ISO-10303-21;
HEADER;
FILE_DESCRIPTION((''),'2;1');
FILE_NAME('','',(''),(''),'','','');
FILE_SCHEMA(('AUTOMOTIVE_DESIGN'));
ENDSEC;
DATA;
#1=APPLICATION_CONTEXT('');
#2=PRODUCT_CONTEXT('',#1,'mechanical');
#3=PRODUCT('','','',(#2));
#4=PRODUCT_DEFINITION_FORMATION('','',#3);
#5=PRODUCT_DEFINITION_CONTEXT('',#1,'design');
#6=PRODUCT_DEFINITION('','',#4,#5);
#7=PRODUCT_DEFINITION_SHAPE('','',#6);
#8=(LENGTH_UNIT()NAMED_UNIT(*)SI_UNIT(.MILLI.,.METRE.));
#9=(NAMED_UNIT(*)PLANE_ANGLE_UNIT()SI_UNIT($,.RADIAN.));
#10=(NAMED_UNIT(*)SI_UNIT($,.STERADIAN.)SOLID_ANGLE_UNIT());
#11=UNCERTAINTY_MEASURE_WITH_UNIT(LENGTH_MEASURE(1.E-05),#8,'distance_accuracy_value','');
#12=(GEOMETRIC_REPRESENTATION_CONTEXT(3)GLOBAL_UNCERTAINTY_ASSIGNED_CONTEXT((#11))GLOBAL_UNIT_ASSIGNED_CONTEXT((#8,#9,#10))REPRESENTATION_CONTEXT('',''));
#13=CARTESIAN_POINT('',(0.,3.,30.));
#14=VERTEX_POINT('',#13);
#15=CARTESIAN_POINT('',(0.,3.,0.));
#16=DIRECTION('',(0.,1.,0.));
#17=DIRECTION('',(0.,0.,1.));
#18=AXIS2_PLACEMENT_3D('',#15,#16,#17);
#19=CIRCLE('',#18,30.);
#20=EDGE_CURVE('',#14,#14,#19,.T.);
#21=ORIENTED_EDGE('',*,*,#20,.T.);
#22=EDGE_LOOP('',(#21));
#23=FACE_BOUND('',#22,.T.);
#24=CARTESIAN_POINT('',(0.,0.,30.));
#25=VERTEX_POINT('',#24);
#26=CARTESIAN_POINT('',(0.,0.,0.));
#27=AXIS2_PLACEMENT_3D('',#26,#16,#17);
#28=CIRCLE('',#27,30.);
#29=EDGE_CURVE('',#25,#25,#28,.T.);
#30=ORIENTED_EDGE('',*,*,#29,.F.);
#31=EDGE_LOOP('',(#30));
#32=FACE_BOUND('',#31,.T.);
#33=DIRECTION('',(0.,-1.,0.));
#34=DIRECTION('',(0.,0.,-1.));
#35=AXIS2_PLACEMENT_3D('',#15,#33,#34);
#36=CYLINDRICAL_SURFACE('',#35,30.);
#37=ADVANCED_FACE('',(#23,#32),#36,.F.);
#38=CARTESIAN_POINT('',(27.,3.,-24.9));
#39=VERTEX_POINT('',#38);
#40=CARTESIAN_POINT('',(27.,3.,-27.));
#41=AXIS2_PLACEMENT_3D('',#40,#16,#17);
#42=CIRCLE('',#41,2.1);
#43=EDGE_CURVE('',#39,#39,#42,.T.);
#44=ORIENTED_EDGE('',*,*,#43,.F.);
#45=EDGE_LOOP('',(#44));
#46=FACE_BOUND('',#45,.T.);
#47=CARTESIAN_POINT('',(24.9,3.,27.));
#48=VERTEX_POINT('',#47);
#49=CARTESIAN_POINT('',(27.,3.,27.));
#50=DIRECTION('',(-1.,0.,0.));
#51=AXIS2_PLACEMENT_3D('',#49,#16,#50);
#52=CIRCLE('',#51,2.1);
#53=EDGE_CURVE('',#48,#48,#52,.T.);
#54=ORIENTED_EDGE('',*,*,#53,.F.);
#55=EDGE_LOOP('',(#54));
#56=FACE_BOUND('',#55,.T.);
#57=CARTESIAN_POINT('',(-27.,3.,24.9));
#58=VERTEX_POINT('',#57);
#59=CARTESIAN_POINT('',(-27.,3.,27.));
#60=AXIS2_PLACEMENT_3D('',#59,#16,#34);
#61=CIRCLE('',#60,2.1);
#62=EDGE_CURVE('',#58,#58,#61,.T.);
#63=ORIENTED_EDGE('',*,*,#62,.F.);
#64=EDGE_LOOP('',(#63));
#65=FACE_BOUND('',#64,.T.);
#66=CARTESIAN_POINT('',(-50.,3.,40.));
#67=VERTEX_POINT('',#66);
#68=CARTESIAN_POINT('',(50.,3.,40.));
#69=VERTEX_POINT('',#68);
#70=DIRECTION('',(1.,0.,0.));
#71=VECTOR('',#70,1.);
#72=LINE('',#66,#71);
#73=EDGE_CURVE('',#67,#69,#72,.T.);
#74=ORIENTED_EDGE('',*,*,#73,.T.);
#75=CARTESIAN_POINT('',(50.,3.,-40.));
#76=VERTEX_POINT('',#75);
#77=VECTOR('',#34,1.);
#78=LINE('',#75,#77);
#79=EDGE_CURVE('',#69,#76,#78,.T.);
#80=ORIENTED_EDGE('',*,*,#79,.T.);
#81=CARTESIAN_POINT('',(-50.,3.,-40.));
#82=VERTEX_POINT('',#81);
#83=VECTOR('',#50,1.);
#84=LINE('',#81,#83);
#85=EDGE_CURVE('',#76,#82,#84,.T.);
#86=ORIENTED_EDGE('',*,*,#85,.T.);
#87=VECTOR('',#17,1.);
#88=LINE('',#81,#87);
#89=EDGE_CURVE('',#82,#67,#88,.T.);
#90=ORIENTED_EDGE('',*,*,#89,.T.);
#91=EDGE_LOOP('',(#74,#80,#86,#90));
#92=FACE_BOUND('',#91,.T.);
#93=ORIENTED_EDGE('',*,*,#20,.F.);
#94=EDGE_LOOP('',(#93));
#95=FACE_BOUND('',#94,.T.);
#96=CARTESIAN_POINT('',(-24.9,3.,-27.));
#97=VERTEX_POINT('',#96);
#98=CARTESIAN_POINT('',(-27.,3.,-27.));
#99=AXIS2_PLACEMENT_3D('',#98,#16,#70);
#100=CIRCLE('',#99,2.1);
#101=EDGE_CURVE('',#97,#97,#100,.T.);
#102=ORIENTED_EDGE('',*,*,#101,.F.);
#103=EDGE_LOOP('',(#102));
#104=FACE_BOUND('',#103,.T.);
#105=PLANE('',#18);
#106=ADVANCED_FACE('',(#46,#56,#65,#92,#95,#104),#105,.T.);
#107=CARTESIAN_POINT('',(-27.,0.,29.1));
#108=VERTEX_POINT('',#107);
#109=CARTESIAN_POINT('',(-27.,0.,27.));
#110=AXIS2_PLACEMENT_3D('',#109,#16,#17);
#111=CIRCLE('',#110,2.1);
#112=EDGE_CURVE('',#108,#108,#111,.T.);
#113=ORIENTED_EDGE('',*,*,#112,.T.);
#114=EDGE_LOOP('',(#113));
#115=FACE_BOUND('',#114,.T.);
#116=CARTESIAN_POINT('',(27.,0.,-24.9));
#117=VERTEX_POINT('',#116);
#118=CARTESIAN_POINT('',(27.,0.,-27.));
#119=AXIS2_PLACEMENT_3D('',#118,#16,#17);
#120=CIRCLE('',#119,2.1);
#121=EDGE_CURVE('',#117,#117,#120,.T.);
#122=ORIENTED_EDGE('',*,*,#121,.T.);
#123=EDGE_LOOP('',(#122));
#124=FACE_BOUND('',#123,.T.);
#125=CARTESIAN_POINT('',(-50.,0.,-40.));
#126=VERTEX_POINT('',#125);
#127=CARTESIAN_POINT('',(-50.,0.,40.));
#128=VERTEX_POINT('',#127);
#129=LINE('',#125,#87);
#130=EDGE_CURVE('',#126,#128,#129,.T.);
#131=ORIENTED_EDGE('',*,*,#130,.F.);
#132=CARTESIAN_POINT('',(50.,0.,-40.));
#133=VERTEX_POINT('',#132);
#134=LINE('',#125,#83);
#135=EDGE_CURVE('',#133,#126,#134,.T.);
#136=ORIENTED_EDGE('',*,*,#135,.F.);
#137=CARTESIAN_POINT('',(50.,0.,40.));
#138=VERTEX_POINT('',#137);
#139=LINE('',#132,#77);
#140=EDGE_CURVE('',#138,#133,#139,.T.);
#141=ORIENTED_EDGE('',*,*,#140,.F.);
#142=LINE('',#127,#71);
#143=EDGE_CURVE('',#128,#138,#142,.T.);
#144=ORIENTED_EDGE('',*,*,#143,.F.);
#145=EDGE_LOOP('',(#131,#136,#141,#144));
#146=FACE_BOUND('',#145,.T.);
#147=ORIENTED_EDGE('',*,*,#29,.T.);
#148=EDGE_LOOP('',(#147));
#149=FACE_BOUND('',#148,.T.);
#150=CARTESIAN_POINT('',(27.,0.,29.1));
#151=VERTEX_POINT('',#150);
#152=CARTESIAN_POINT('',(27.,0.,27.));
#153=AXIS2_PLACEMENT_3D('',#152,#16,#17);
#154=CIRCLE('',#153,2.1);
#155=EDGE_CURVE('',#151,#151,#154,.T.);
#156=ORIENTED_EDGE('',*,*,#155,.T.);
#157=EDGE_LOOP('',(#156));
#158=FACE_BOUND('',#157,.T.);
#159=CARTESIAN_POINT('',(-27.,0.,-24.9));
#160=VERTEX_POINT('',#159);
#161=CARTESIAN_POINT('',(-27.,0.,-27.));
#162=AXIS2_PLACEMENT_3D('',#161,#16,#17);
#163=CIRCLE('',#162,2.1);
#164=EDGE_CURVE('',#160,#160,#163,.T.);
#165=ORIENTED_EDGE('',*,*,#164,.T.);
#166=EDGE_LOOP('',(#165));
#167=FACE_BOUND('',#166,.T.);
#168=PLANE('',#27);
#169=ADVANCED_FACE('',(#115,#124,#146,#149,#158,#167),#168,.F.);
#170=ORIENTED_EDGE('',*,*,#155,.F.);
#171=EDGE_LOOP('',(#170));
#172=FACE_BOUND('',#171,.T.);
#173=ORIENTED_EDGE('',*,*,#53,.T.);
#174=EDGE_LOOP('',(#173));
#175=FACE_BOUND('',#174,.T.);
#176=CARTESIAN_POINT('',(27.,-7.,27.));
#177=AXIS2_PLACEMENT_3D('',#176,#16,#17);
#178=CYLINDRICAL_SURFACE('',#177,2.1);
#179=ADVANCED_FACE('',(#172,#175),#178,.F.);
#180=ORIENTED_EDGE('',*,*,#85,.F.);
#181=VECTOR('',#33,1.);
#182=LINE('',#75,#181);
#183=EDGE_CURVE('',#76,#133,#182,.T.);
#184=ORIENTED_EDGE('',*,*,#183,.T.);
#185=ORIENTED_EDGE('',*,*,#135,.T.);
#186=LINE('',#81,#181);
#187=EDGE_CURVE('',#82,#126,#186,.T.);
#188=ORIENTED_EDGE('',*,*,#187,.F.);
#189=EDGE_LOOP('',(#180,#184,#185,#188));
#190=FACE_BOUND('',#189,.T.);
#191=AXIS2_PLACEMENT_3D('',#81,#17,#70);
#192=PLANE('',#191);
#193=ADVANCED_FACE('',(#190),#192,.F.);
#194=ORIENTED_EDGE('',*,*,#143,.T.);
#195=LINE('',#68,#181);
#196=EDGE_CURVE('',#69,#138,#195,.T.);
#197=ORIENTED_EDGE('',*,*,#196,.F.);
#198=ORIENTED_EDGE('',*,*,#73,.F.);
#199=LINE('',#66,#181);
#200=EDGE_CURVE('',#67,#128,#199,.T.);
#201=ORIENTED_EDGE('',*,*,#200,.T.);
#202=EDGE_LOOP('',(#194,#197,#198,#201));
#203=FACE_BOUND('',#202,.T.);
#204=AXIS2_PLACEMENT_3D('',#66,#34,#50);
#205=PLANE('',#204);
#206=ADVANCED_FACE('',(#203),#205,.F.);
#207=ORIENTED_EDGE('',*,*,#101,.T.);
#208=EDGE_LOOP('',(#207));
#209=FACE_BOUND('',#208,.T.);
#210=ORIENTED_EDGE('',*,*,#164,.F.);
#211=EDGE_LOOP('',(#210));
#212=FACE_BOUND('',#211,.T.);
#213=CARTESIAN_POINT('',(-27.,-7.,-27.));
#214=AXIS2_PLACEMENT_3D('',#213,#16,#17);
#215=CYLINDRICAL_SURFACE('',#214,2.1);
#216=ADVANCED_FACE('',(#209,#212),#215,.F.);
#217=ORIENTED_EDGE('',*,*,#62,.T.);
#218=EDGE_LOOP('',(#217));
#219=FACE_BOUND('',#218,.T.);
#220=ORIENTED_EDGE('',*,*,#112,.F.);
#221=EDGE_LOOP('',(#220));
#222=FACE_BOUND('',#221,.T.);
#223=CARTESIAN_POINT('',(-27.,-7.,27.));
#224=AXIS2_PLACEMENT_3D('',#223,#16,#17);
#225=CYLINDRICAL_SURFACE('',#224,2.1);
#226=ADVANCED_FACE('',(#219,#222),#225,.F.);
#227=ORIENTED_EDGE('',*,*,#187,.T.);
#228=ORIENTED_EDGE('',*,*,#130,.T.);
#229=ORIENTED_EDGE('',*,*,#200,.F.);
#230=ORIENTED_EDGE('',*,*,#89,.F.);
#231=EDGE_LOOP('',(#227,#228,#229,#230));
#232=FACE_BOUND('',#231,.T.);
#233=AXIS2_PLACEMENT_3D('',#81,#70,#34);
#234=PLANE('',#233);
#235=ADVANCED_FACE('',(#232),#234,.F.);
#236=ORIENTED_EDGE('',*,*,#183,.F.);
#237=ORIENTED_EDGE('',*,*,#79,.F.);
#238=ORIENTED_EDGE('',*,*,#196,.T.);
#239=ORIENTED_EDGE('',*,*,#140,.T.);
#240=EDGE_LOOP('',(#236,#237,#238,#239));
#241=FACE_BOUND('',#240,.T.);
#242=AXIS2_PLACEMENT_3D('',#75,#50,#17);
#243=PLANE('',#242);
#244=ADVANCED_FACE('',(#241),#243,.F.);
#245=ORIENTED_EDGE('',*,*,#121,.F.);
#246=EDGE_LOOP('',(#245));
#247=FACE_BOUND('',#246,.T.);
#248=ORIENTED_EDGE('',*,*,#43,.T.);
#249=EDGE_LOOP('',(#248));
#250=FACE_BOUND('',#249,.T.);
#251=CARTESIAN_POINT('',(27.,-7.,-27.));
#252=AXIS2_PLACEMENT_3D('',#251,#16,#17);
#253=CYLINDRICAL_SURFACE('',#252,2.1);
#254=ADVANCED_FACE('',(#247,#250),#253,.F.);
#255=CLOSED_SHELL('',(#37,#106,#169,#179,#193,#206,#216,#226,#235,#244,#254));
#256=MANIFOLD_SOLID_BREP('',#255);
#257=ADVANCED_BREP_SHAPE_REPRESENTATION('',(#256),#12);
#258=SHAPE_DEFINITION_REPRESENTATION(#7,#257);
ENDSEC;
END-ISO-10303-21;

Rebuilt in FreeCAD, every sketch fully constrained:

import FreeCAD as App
import Part
import Sketcher

V = App.Vector

doc = App.newDocument("Part")
params = doc.addObject("Spreadsheet::Sheet", "Params")
for row, (alias, value) in enumerate([
    ("sketch1_diameter", "60 mm"),
    ("sketch1_width", "100 mm"),
    ("sketch1_height", "80 mm"),
    ("pad1_length", "3 mm"),
    ("sketch2_diameter", "4.2 mm"),
    ("pocket1_length", "10 mm"),
], start=1):
    params.set(f"A{row}", alias)
    params.set(f"B{row}", "=" + value)
    params.setAlias(f"B{row}", alias)

body = doc.addObject("PartDesign::Body", "Body")

sketch1 = doc.addObject("Sketcher::SketchObject", "Sketch")
body.addObject(sketch1)
sketch1.AttachmentSupport = (doc.XZ_Plane, [""])
sketch1.MapMode = "FlatFace"
sketch1.addGeometry([
    Part.LineSegment(V(-50, -40, 0), V(-50, 40, 0)),
    Part.LineSegment(V(-50, 40, 0), V(50, 40, 0)),
    Part.LineSegment(V(50, 40, 0), V(50, -40, 0)),
    Part.LineSegment(V(50, -40, 0), V(-50, -40, 0)),
    Part.Circle(V(0, 0, 0), V(0, 0, 1), 30),
], False)
sketch1.addConstraint([
    Sketcher.Constraint("Coincident", 0, 2, 1, 1),
    Sketcher.Constraint("Coincident", 1, 2, 2, 1),
    Sketcher.Constraint("Coincident", 2, 2, 3, 1),
    Sketcher.Constraint("Coincident", 3, 2, 0, 1),
    Sketcher.Constraint("Vertical", 0),
    Sketcher.Constraint("Horizontal", 1),
    Sketcher.Constraint("Vertical", 2),
    Sketcher.Constraint("Horizontal", 3),
    Sketcher.Constraint("Coincident", 4, 3, -1, 1),
    Sketcher.Constraint("Symmetric", 0, 2, 2, 2, -1, 1),
    Sketcher.Constraint("Diameter", 4, 60.0),
    Sketcher.Constraint("DistanceX", 1, 1, 1, 2, 100.0),
    Sketcher.Constraint("DistanceY", 0, 1, 0, 2, 80.0),
])
sketch1.setExpression("Constraints[10]", "Params.sketch1_diameter")
sketch1.setExpression("Constraints[11]", "Params.sketch1_width")
sketch1.setExpression("Constraints[12]", "Params.sketch1_height")
pad1 = doc.addObject("PartDesign::Pad", "Pad")
body.addObject(pad1)
pad1.Profile = sketch1
pad1.setExpression("Length", "Params.pad1_length")
pad1.Reversed = True

sketch2 = doc.addObject("Sketcher::SketchObject", "Sketch001")
body.addObject(sketch2)
sketch2.AttachmentSupport = (doc.XZ_Plane, [""])
sketch2.MapMode = "FlatFace"
sketch2.AttachmentOffset = App.Placement(V(0, 0, -3), App.Rotation())
sketch2.addGeometry(Part.Circle(V(27, -27, 0), V(0, 0, 1), 2.1), False)
sketch2.addConstraint([
    Sketcher.Constraint("Diameter", 0, 4.2),
    Sketcher.Constraint("DistanceX", -1, 1, 0, 3, 27.0),
    Sketcher.Constraint("DistanceY", 0, 3, -1, 1, 27.0),
])
sketch2.setExpression("Constraints[0]", "Params.sketch2_diameter")
pocket1 = doc.addObject("PartDesign::Pocket", "Pocket")
body.addObject(pocket1)
pocket1.Profile = sketch2
pocket1.setExpression("Length", "Params.pocket1_length")
pocket1.Reversed = True
doc.recompute()

polarpattern = doc.addObject("PartDesign::PolarPattern", "PolarPattern")
body.addObject(polarpattern)
polarpattern.Originals = [pocket1]
polarpattern.Axis = (doc.Y_Axis, [""])
polarpattern.Angle = 360
polarpattern.Occurrences = 4
body.Tip = polarpattern

doc.recompute()
